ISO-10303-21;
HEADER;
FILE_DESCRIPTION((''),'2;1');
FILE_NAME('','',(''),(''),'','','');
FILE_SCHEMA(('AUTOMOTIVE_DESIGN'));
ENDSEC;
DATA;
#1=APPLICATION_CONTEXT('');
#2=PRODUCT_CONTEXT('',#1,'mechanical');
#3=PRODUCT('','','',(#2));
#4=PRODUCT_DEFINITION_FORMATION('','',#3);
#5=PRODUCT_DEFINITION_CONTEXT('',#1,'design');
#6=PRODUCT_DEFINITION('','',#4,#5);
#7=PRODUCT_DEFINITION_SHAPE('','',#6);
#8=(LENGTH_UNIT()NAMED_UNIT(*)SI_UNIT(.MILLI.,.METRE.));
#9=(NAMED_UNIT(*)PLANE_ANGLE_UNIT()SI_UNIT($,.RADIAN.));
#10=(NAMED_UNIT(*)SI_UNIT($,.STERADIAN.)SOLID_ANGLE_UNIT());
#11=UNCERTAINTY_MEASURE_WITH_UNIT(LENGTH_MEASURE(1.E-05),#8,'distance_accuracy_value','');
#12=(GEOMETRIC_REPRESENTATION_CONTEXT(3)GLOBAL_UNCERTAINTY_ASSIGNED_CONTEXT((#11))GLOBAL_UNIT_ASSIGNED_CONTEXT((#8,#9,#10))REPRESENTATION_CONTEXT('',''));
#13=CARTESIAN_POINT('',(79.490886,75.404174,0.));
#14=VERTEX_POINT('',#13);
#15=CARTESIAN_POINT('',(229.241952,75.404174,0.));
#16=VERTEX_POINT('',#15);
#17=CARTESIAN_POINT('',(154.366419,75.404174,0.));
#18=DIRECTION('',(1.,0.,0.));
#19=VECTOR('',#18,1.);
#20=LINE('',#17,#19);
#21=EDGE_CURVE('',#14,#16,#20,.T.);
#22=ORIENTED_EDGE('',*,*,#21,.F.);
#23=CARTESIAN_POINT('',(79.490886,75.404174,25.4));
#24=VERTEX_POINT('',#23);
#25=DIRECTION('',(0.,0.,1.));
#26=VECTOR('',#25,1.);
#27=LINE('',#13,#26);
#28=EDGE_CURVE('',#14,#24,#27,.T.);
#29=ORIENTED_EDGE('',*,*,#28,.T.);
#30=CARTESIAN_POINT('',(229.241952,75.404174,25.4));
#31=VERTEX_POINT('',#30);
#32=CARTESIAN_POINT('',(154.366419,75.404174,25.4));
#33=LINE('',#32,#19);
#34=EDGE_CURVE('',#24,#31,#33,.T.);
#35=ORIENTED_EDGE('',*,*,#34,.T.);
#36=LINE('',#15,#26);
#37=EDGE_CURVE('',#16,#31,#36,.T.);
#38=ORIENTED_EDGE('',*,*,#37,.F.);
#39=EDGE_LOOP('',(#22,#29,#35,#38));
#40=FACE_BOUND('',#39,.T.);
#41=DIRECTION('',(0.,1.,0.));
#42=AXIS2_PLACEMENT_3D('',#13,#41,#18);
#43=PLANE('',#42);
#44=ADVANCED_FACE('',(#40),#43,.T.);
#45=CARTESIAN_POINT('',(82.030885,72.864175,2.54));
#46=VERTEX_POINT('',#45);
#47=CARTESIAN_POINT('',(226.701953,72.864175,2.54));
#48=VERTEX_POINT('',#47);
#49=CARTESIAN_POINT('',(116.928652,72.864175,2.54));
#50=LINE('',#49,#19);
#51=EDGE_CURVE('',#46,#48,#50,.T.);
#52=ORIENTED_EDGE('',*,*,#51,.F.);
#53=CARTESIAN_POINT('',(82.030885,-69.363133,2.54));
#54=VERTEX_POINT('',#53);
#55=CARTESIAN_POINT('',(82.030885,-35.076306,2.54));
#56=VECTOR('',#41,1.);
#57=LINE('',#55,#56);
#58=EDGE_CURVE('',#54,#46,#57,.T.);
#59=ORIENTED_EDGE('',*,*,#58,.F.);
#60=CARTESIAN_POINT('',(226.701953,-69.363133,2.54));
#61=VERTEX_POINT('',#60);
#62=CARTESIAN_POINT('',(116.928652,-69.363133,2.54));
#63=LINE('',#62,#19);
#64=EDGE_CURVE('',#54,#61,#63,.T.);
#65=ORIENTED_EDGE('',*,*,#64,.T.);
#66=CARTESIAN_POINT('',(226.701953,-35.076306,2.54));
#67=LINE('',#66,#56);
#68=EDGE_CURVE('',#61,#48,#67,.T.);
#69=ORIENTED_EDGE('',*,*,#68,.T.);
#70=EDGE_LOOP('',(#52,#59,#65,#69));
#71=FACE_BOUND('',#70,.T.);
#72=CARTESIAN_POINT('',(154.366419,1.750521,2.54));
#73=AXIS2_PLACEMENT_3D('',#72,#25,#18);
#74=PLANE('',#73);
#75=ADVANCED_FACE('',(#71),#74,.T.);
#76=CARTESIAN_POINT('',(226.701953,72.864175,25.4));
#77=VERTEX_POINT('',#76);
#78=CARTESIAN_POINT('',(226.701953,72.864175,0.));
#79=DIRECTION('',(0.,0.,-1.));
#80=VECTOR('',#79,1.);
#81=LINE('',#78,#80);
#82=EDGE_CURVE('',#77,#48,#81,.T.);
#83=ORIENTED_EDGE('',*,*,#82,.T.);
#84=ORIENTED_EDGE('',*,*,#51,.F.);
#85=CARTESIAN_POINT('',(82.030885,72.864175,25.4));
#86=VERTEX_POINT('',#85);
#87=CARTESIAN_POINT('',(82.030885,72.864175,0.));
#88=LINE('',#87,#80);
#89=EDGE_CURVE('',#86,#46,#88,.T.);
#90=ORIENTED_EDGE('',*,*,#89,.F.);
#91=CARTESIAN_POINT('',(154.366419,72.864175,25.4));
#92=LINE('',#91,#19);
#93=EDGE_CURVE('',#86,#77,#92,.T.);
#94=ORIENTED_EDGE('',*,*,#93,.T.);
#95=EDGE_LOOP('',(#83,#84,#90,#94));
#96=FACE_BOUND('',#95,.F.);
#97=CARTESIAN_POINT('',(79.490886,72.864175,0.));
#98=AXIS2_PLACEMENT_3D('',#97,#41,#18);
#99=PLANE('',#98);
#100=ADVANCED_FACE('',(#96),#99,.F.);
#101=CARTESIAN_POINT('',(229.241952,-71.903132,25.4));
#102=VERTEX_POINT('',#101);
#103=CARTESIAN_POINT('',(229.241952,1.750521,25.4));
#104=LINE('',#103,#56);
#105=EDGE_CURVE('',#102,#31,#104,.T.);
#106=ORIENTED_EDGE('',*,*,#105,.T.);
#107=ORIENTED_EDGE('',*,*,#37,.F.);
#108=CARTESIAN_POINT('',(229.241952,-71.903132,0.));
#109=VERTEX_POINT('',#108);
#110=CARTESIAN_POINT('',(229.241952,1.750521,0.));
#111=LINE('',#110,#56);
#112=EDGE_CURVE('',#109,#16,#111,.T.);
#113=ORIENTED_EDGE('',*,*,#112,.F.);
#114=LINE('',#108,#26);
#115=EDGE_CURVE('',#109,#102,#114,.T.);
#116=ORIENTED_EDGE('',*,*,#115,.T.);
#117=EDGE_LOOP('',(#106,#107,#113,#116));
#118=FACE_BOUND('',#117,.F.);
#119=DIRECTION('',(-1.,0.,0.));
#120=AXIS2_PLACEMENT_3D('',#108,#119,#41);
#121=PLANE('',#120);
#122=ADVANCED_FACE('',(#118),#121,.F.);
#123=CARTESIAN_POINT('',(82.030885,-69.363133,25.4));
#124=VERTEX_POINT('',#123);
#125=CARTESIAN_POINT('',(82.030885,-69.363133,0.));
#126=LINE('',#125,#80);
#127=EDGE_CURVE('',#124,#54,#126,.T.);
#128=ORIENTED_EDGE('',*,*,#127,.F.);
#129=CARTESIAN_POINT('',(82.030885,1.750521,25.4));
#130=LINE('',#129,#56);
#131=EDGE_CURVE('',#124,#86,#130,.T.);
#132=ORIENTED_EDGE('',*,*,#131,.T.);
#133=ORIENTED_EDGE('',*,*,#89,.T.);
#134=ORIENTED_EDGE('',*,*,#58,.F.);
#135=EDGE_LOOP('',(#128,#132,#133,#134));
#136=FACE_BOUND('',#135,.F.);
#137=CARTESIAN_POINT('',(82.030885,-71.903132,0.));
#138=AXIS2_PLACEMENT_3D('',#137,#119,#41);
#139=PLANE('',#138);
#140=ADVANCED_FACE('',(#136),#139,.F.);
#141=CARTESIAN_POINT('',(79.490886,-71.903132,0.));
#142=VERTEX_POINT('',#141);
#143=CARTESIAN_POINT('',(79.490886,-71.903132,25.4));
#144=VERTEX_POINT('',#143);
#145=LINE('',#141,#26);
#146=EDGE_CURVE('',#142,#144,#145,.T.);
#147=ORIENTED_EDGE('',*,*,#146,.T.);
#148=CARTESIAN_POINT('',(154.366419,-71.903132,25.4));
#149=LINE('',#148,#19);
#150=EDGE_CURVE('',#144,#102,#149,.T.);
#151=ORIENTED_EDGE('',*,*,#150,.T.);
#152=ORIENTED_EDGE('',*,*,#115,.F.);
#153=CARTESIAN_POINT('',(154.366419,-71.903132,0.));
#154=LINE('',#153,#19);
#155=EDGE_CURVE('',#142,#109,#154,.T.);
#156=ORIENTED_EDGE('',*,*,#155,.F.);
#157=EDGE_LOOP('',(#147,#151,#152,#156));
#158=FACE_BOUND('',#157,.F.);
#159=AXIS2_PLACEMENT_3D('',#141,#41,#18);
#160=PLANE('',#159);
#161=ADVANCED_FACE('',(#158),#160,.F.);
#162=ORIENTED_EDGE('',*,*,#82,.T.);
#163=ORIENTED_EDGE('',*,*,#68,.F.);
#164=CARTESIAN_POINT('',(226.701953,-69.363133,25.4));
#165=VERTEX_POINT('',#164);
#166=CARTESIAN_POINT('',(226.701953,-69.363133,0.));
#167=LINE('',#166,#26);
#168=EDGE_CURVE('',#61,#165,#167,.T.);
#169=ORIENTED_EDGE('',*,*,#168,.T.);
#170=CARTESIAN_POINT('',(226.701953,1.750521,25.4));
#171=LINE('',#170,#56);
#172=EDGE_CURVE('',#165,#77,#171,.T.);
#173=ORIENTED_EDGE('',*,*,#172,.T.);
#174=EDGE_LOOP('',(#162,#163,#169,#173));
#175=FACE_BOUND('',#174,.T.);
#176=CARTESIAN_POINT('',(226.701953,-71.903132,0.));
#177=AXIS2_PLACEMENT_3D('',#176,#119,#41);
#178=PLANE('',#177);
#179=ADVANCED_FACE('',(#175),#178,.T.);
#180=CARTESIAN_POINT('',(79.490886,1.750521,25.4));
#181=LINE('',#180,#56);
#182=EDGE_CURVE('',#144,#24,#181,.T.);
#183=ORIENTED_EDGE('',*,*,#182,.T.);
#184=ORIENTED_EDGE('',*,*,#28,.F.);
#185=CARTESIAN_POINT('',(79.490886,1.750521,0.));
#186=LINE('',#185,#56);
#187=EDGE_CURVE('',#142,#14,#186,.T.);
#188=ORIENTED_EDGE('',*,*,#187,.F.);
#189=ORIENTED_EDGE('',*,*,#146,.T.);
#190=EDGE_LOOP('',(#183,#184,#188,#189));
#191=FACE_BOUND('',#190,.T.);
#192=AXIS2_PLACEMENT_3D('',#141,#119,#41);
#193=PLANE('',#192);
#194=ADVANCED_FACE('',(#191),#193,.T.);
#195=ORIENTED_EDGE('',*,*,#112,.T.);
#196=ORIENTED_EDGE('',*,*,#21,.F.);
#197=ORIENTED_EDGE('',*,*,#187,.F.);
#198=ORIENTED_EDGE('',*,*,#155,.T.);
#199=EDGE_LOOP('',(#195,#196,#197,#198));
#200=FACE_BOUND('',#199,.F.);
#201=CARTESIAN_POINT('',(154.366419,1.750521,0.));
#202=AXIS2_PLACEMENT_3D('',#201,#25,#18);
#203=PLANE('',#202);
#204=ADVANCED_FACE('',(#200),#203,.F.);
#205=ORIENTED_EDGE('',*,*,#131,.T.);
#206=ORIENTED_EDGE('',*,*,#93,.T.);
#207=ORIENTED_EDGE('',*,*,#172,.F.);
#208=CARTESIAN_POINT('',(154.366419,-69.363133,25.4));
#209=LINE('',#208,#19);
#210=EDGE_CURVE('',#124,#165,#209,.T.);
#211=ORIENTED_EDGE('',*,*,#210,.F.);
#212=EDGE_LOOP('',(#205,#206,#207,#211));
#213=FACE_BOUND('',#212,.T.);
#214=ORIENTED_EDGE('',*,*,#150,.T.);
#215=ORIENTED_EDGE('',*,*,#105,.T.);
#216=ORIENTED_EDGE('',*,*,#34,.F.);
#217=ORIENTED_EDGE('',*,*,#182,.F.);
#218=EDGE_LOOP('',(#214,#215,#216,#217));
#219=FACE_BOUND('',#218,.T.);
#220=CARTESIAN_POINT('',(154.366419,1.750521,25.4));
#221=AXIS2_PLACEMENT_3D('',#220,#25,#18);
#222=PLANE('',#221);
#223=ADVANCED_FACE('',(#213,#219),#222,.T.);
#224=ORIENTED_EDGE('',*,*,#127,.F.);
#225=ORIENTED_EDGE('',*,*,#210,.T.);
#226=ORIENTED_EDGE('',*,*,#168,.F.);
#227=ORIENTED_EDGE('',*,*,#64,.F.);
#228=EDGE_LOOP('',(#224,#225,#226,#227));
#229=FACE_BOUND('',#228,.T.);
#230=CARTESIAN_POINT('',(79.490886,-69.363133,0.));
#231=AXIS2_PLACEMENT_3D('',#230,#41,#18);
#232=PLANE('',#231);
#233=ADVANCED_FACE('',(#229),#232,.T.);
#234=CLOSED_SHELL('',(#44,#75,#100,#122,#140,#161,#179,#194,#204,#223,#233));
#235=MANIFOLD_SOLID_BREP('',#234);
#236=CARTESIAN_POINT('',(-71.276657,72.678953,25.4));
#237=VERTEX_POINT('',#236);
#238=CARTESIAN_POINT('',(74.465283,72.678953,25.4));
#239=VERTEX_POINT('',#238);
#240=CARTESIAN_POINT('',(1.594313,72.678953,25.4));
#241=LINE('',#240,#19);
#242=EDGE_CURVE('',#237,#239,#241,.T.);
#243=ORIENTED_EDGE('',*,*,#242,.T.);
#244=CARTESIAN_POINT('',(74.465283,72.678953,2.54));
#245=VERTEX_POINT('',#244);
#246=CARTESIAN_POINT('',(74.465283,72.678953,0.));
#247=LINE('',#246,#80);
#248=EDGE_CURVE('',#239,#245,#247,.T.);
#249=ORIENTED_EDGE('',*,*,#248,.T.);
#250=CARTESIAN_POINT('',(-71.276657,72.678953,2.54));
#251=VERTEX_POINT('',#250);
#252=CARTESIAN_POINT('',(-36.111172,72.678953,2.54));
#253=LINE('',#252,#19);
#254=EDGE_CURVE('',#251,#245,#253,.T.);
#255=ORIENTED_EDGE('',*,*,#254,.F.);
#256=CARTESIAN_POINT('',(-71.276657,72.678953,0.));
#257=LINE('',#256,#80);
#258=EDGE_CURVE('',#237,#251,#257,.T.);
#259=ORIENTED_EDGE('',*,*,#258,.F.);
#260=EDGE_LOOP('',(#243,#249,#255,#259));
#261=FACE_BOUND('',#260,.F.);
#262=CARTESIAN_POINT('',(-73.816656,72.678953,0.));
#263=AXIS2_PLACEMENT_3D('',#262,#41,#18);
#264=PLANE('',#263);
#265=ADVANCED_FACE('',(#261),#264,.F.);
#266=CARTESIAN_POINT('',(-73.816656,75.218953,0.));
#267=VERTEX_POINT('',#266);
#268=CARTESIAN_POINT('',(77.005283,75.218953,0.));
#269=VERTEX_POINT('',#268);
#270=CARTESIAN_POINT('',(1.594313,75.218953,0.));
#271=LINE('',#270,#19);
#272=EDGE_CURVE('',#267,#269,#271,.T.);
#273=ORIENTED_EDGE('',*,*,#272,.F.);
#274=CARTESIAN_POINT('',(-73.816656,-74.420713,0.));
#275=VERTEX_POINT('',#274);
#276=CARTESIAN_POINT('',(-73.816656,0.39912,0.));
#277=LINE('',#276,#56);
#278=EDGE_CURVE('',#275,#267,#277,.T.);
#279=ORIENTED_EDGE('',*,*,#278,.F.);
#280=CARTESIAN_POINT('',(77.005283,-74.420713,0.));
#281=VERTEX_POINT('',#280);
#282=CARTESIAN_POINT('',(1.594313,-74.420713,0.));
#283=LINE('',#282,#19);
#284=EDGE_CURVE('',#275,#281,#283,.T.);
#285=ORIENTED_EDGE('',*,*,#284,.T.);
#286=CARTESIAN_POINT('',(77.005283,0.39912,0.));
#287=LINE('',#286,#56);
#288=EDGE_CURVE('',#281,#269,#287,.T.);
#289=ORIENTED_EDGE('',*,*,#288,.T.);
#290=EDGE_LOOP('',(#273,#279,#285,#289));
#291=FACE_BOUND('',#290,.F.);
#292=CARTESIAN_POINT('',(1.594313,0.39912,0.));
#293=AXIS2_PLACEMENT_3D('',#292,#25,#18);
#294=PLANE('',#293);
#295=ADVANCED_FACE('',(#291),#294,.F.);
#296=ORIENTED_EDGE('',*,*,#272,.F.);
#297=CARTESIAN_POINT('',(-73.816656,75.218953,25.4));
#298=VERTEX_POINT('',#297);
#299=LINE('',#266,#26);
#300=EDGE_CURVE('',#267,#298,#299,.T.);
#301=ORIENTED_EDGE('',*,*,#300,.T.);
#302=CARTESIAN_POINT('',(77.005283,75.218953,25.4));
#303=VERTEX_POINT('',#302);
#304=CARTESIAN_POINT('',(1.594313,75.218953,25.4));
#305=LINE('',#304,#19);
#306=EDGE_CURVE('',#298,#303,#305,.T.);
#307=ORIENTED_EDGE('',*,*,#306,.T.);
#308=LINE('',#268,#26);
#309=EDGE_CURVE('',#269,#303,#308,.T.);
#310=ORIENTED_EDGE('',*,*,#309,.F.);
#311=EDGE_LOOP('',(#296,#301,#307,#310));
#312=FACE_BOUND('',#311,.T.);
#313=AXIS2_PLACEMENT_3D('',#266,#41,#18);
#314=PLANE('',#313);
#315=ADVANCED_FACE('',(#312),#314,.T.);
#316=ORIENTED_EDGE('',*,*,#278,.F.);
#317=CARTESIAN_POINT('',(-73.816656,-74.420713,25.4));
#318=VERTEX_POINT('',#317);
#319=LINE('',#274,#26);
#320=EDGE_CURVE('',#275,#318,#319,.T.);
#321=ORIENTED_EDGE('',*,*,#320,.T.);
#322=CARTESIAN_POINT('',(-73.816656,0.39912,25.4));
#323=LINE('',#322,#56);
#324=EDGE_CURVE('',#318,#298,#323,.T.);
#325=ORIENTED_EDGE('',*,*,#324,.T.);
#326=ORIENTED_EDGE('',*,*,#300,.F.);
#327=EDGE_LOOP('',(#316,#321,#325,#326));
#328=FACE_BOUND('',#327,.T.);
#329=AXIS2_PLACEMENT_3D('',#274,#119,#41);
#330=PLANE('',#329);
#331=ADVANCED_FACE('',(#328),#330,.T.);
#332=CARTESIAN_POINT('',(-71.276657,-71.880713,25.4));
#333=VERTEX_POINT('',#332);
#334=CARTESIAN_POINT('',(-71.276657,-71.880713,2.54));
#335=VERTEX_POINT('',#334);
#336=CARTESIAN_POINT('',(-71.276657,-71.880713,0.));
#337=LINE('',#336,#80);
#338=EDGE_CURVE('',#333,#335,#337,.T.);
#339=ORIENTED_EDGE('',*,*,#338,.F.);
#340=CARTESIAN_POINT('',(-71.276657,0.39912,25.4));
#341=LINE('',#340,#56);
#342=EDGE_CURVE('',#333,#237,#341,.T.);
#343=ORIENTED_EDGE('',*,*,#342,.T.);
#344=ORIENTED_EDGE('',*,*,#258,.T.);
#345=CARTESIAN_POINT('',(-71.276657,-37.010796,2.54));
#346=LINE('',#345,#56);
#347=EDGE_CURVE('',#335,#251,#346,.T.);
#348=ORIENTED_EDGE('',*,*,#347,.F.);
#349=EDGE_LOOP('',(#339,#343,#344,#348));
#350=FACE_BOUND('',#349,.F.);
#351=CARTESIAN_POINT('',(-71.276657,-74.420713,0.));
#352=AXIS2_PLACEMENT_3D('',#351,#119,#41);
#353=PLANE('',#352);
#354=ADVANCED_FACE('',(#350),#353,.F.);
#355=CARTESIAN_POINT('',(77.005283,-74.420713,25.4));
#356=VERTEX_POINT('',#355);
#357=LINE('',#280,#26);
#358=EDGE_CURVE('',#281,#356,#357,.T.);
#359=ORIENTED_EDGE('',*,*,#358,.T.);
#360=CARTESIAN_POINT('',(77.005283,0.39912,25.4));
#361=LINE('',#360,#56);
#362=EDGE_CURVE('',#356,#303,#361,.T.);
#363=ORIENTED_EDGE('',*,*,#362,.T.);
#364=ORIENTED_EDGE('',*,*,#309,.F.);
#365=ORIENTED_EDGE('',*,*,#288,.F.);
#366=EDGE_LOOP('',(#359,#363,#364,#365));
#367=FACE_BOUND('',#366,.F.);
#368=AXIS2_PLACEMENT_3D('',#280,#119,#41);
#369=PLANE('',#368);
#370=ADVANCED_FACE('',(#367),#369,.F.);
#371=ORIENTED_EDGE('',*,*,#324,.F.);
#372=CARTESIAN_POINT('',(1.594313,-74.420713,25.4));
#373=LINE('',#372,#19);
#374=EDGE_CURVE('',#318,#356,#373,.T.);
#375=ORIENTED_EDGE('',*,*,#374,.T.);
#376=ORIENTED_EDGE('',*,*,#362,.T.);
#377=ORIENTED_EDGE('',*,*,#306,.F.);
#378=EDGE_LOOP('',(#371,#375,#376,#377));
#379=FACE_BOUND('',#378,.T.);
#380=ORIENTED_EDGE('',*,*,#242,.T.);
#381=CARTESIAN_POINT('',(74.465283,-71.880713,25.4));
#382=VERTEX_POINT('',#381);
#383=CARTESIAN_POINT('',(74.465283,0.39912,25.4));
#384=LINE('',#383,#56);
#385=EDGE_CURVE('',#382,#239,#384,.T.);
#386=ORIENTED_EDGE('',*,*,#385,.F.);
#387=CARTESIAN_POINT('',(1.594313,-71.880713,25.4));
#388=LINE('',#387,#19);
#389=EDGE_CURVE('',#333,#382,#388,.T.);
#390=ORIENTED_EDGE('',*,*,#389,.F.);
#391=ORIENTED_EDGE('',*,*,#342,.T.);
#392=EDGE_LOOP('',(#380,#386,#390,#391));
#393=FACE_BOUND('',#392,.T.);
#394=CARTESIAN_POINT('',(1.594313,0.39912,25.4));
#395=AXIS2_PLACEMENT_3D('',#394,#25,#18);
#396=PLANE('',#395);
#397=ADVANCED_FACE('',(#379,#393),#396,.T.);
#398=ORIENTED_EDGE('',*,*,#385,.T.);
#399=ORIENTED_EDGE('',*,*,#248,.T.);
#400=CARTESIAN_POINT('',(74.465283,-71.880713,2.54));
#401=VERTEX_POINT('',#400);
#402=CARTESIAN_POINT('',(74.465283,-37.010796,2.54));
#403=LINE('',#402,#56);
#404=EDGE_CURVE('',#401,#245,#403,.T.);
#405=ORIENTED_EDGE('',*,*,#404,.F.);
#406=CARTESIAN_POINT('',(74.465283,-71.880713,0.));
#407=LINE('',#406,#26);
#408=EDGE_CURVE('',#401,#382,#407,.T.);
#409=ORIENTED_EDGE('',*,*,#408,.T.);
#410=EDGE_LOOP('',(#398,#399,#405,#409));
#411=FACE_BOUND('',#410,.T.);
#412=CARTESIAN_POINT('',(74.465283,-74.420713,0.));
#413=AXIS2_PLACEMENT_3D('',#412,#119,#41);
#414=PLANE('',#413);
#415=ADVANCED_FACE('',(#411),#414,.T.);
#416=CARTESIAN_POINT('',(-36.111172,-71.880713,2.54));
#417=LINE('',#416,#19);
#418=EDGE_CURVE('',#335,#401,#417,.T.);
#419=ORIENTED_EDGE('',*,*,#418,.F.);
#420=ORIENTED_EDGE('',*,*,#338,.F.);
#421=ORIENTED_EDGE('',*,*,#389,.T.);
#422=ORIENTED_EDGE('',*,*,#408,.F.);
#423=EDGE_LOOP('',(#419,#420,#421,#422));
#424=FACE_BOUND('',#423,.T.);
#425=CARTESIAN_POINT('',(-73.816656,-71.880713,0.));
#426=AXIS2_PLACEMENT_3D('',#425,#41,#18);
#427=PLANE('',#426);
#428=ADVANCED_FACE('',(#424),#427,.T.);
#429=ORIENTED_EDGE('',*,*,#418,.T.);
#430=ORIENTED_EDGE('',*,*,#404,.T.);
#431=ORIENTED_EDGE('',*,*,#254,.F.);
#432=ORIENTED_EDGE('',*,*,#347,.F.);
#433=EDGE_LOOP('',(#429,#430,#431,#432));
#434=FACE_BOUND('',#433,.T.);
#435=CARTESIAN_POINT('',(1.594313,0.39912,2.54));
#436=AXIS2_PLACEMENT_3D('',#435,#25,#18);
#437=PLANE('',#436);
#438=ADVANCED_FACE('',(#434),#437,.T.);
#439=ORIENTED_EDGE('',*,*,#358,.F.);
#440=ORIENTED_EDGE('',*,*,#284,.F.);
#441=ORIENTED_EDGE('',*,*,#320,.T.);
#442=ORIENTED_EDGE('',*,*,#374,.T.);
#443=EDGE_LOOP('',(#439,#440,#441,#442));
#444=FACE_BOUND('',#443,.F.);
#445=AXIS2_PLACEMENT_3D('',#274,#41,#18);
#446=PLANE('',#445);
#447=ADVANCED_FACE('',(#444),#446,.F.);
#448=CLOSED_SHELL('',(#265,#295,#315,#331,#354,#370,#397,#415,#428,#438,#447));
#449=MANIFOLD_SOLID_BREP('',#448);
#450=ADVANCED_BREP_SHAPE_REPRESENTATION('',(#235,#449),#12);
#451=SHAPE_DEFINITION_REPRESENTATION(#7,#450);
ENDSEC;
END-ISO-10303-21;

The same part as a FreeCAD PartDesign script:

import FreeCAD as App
import Part
import Sketcher

V = App.Vector
Q = App.Units.Quantity


def faces_at(feature, points):
    """Names of the faces that lie closest to the given points."""
    faces = feature.Shape.Faces
    near = lambda p: min(range(len(faces)), key=lambda i: faces[i].distToShape(Part.Vertex(*p))[0])
    return sorted({f"Face{near(p) + 1}" for p in points})

doc = App.newDocument("Part")
body = doc.addObject("PartDesign::Body", "Body")

# Sketch on XY plane
sketch1 = body.newObject("Sketcher::SketchObject", "Sketch")
sketch1.AttachmentSupport = (doc.getObject("XY_Plane"), [""])
sketch1.MapMode = "FlatFace"
sketch1.addGeometry(Part.LineSegment(V(-74, 75, 0), V(-74, -74, 0)), False)
sketch1.addGeometry(Part.LineSegment(V(-74, -74, 0), V(77, -74, 0)), False)
sketch1.addGeometry(Part.LineSegment(V(77, -74, 0), V(77, 75, 0)), False)
sketch1.addGeometry(Part.LineSegment(V(77, 75, 0), V(-74, 75, 0)), False)
sketch1.addConstraint(Sketcher.Constraint("Coincident", 0, 2, 1, 1))
sketch1.addConstraint(Sketcher.Constraint("Coincident", 1, 2, 2, 1))
sketch1.addConstraint(Sketcher.Constraint("Coincident", 2, 2, 3, 1))
sketch1.addConstraint(Sketcher.Constraint("Coincident", 3, 2, 0, 1))
sketch1.addConstraint(Sketcher.Constraint("Vertical", 0))
sketch1.addConstraint(Sketcher.Constraint("Horizontal", 1))
sketch1.addConstraint(Sketcher.Constraint("Vertical", 2))
sketch1.addConstraint(Sketcher.Constraint("Horizontal", 3))
sketch1.addConstraint(Sketcher.Constraint("DistanceX", 1, 1, 1, 2, Q("150.821939 mm")))
sketch1.addConstraint(Sketcher.Constraint("DistanceY", 0, 2, 0, 1, Q("149.639666 mm")))
sketch1.addConstraint(Sketcher.Constraint("DistanceX", 0, 2, -1, 1, Q("73.816656 mm")))
sketch1.addConstraint(Sketcher.Constraint("DistanceY", 0, 2, -1, 1, Q("74.420713 mm")))
pad1 = body.newObject("PartDesign::Pad", "Pad")
pad1.Profile = sketch1
pad1.Length = Q("1 in")
doc.recompute()

thickness = body.newObject("PartDesign::Thickness", "Thickness")
thickness.Base = (pad1, faces_at(pad1, [(1.594, 0.399, 25.4)]))
thickness.Value = Q("0.1 in")
thickness.Reversed = True
thickness.Join = "Arc"
body2 = doc.addObject("PartDesign::Body", "Body001")

# Sketch on XY plane
sketch2 = body2.newObject("Sketcher::SketchObject", "Sketch001")
sketch2.AttachmentSupport = (doc.getObject("XY_Plane001"), [""])
sketch2.MapMode = "FlatFace"
sketch2.addGeometry(Part.LineSegment(V(79, 75, 0), V(79, -72, 0)), False)
sketch2.addGeometry(Part.LineSegment(V(79, -72, 0), V(229, -72, 0)), False)
sketch2.addGeometry(Part.LineSegment(V(229, -72, 0), V(229, 75, 0)), False)
sketch2.addGeometry(Part.LineSegment(V(229, 75, 0), V(79, 75, 0)), False)
sketch2.addConstraint(Sketcher.Constraint("Coincident", 0, 2, 1, 1))
sketch2.addConstraint(Sketcher.Constraint("Coincident", 1, 2, 2, 1))
sketch2.addConstraint(Sketcher.Constraint("Coincident", 2, 2, 3, 1))
sketch2.addConstraint(Sketcher.Constraint("Coincident", 3, 2, 0, 1))
sketch2.addConstraint(Sketcher.Constraint("Vertical", 0))
sketch2.addConstraint(Sketcher.Constraint("Horizontal", 1))
sketch2.addConstraint(Sketcher.Constraint("Vertical", 2))
sketch2.addConstraint(Sketcher.Constraint("Horizontal", 3))
sketch2.addConstraint(Sketcher.Constraint("DistanceX", 1, 1, 1, 2, Q("149.751067 mm")))
sketch2.addConstraint(Sketcher.Constraint("DistanceY", 0, 2, 0, 1, Q("147.307307 mm")))
sketch2.addConstraint(Sketcher.Constraint("DistanceX", -1, 1, 0, 2, Q("79.490886 mm")))
sketch2.addConstraint(Sketcher.Constraint("DistanceY", 0, 2, -1, 1, Q("71.903132 mm")))
pad2 = body2.newObject("PartDesign::Pad", "Pad001")
pad2.Profile = sketch2
pad2.Length = Q("1 in")
doc.recompute()

thickness2 = body2.newObject("PartDesign::Thickness", "Thickness001")
thickness2.Base = (pad2, faces_at(pad2, [(154.366, 1.751, 25.4)]))
thickness2.Value = Q("0.1 in")
thickness2.Reversed = True
thickness2.Join = "Arc"

doc.recompute()
